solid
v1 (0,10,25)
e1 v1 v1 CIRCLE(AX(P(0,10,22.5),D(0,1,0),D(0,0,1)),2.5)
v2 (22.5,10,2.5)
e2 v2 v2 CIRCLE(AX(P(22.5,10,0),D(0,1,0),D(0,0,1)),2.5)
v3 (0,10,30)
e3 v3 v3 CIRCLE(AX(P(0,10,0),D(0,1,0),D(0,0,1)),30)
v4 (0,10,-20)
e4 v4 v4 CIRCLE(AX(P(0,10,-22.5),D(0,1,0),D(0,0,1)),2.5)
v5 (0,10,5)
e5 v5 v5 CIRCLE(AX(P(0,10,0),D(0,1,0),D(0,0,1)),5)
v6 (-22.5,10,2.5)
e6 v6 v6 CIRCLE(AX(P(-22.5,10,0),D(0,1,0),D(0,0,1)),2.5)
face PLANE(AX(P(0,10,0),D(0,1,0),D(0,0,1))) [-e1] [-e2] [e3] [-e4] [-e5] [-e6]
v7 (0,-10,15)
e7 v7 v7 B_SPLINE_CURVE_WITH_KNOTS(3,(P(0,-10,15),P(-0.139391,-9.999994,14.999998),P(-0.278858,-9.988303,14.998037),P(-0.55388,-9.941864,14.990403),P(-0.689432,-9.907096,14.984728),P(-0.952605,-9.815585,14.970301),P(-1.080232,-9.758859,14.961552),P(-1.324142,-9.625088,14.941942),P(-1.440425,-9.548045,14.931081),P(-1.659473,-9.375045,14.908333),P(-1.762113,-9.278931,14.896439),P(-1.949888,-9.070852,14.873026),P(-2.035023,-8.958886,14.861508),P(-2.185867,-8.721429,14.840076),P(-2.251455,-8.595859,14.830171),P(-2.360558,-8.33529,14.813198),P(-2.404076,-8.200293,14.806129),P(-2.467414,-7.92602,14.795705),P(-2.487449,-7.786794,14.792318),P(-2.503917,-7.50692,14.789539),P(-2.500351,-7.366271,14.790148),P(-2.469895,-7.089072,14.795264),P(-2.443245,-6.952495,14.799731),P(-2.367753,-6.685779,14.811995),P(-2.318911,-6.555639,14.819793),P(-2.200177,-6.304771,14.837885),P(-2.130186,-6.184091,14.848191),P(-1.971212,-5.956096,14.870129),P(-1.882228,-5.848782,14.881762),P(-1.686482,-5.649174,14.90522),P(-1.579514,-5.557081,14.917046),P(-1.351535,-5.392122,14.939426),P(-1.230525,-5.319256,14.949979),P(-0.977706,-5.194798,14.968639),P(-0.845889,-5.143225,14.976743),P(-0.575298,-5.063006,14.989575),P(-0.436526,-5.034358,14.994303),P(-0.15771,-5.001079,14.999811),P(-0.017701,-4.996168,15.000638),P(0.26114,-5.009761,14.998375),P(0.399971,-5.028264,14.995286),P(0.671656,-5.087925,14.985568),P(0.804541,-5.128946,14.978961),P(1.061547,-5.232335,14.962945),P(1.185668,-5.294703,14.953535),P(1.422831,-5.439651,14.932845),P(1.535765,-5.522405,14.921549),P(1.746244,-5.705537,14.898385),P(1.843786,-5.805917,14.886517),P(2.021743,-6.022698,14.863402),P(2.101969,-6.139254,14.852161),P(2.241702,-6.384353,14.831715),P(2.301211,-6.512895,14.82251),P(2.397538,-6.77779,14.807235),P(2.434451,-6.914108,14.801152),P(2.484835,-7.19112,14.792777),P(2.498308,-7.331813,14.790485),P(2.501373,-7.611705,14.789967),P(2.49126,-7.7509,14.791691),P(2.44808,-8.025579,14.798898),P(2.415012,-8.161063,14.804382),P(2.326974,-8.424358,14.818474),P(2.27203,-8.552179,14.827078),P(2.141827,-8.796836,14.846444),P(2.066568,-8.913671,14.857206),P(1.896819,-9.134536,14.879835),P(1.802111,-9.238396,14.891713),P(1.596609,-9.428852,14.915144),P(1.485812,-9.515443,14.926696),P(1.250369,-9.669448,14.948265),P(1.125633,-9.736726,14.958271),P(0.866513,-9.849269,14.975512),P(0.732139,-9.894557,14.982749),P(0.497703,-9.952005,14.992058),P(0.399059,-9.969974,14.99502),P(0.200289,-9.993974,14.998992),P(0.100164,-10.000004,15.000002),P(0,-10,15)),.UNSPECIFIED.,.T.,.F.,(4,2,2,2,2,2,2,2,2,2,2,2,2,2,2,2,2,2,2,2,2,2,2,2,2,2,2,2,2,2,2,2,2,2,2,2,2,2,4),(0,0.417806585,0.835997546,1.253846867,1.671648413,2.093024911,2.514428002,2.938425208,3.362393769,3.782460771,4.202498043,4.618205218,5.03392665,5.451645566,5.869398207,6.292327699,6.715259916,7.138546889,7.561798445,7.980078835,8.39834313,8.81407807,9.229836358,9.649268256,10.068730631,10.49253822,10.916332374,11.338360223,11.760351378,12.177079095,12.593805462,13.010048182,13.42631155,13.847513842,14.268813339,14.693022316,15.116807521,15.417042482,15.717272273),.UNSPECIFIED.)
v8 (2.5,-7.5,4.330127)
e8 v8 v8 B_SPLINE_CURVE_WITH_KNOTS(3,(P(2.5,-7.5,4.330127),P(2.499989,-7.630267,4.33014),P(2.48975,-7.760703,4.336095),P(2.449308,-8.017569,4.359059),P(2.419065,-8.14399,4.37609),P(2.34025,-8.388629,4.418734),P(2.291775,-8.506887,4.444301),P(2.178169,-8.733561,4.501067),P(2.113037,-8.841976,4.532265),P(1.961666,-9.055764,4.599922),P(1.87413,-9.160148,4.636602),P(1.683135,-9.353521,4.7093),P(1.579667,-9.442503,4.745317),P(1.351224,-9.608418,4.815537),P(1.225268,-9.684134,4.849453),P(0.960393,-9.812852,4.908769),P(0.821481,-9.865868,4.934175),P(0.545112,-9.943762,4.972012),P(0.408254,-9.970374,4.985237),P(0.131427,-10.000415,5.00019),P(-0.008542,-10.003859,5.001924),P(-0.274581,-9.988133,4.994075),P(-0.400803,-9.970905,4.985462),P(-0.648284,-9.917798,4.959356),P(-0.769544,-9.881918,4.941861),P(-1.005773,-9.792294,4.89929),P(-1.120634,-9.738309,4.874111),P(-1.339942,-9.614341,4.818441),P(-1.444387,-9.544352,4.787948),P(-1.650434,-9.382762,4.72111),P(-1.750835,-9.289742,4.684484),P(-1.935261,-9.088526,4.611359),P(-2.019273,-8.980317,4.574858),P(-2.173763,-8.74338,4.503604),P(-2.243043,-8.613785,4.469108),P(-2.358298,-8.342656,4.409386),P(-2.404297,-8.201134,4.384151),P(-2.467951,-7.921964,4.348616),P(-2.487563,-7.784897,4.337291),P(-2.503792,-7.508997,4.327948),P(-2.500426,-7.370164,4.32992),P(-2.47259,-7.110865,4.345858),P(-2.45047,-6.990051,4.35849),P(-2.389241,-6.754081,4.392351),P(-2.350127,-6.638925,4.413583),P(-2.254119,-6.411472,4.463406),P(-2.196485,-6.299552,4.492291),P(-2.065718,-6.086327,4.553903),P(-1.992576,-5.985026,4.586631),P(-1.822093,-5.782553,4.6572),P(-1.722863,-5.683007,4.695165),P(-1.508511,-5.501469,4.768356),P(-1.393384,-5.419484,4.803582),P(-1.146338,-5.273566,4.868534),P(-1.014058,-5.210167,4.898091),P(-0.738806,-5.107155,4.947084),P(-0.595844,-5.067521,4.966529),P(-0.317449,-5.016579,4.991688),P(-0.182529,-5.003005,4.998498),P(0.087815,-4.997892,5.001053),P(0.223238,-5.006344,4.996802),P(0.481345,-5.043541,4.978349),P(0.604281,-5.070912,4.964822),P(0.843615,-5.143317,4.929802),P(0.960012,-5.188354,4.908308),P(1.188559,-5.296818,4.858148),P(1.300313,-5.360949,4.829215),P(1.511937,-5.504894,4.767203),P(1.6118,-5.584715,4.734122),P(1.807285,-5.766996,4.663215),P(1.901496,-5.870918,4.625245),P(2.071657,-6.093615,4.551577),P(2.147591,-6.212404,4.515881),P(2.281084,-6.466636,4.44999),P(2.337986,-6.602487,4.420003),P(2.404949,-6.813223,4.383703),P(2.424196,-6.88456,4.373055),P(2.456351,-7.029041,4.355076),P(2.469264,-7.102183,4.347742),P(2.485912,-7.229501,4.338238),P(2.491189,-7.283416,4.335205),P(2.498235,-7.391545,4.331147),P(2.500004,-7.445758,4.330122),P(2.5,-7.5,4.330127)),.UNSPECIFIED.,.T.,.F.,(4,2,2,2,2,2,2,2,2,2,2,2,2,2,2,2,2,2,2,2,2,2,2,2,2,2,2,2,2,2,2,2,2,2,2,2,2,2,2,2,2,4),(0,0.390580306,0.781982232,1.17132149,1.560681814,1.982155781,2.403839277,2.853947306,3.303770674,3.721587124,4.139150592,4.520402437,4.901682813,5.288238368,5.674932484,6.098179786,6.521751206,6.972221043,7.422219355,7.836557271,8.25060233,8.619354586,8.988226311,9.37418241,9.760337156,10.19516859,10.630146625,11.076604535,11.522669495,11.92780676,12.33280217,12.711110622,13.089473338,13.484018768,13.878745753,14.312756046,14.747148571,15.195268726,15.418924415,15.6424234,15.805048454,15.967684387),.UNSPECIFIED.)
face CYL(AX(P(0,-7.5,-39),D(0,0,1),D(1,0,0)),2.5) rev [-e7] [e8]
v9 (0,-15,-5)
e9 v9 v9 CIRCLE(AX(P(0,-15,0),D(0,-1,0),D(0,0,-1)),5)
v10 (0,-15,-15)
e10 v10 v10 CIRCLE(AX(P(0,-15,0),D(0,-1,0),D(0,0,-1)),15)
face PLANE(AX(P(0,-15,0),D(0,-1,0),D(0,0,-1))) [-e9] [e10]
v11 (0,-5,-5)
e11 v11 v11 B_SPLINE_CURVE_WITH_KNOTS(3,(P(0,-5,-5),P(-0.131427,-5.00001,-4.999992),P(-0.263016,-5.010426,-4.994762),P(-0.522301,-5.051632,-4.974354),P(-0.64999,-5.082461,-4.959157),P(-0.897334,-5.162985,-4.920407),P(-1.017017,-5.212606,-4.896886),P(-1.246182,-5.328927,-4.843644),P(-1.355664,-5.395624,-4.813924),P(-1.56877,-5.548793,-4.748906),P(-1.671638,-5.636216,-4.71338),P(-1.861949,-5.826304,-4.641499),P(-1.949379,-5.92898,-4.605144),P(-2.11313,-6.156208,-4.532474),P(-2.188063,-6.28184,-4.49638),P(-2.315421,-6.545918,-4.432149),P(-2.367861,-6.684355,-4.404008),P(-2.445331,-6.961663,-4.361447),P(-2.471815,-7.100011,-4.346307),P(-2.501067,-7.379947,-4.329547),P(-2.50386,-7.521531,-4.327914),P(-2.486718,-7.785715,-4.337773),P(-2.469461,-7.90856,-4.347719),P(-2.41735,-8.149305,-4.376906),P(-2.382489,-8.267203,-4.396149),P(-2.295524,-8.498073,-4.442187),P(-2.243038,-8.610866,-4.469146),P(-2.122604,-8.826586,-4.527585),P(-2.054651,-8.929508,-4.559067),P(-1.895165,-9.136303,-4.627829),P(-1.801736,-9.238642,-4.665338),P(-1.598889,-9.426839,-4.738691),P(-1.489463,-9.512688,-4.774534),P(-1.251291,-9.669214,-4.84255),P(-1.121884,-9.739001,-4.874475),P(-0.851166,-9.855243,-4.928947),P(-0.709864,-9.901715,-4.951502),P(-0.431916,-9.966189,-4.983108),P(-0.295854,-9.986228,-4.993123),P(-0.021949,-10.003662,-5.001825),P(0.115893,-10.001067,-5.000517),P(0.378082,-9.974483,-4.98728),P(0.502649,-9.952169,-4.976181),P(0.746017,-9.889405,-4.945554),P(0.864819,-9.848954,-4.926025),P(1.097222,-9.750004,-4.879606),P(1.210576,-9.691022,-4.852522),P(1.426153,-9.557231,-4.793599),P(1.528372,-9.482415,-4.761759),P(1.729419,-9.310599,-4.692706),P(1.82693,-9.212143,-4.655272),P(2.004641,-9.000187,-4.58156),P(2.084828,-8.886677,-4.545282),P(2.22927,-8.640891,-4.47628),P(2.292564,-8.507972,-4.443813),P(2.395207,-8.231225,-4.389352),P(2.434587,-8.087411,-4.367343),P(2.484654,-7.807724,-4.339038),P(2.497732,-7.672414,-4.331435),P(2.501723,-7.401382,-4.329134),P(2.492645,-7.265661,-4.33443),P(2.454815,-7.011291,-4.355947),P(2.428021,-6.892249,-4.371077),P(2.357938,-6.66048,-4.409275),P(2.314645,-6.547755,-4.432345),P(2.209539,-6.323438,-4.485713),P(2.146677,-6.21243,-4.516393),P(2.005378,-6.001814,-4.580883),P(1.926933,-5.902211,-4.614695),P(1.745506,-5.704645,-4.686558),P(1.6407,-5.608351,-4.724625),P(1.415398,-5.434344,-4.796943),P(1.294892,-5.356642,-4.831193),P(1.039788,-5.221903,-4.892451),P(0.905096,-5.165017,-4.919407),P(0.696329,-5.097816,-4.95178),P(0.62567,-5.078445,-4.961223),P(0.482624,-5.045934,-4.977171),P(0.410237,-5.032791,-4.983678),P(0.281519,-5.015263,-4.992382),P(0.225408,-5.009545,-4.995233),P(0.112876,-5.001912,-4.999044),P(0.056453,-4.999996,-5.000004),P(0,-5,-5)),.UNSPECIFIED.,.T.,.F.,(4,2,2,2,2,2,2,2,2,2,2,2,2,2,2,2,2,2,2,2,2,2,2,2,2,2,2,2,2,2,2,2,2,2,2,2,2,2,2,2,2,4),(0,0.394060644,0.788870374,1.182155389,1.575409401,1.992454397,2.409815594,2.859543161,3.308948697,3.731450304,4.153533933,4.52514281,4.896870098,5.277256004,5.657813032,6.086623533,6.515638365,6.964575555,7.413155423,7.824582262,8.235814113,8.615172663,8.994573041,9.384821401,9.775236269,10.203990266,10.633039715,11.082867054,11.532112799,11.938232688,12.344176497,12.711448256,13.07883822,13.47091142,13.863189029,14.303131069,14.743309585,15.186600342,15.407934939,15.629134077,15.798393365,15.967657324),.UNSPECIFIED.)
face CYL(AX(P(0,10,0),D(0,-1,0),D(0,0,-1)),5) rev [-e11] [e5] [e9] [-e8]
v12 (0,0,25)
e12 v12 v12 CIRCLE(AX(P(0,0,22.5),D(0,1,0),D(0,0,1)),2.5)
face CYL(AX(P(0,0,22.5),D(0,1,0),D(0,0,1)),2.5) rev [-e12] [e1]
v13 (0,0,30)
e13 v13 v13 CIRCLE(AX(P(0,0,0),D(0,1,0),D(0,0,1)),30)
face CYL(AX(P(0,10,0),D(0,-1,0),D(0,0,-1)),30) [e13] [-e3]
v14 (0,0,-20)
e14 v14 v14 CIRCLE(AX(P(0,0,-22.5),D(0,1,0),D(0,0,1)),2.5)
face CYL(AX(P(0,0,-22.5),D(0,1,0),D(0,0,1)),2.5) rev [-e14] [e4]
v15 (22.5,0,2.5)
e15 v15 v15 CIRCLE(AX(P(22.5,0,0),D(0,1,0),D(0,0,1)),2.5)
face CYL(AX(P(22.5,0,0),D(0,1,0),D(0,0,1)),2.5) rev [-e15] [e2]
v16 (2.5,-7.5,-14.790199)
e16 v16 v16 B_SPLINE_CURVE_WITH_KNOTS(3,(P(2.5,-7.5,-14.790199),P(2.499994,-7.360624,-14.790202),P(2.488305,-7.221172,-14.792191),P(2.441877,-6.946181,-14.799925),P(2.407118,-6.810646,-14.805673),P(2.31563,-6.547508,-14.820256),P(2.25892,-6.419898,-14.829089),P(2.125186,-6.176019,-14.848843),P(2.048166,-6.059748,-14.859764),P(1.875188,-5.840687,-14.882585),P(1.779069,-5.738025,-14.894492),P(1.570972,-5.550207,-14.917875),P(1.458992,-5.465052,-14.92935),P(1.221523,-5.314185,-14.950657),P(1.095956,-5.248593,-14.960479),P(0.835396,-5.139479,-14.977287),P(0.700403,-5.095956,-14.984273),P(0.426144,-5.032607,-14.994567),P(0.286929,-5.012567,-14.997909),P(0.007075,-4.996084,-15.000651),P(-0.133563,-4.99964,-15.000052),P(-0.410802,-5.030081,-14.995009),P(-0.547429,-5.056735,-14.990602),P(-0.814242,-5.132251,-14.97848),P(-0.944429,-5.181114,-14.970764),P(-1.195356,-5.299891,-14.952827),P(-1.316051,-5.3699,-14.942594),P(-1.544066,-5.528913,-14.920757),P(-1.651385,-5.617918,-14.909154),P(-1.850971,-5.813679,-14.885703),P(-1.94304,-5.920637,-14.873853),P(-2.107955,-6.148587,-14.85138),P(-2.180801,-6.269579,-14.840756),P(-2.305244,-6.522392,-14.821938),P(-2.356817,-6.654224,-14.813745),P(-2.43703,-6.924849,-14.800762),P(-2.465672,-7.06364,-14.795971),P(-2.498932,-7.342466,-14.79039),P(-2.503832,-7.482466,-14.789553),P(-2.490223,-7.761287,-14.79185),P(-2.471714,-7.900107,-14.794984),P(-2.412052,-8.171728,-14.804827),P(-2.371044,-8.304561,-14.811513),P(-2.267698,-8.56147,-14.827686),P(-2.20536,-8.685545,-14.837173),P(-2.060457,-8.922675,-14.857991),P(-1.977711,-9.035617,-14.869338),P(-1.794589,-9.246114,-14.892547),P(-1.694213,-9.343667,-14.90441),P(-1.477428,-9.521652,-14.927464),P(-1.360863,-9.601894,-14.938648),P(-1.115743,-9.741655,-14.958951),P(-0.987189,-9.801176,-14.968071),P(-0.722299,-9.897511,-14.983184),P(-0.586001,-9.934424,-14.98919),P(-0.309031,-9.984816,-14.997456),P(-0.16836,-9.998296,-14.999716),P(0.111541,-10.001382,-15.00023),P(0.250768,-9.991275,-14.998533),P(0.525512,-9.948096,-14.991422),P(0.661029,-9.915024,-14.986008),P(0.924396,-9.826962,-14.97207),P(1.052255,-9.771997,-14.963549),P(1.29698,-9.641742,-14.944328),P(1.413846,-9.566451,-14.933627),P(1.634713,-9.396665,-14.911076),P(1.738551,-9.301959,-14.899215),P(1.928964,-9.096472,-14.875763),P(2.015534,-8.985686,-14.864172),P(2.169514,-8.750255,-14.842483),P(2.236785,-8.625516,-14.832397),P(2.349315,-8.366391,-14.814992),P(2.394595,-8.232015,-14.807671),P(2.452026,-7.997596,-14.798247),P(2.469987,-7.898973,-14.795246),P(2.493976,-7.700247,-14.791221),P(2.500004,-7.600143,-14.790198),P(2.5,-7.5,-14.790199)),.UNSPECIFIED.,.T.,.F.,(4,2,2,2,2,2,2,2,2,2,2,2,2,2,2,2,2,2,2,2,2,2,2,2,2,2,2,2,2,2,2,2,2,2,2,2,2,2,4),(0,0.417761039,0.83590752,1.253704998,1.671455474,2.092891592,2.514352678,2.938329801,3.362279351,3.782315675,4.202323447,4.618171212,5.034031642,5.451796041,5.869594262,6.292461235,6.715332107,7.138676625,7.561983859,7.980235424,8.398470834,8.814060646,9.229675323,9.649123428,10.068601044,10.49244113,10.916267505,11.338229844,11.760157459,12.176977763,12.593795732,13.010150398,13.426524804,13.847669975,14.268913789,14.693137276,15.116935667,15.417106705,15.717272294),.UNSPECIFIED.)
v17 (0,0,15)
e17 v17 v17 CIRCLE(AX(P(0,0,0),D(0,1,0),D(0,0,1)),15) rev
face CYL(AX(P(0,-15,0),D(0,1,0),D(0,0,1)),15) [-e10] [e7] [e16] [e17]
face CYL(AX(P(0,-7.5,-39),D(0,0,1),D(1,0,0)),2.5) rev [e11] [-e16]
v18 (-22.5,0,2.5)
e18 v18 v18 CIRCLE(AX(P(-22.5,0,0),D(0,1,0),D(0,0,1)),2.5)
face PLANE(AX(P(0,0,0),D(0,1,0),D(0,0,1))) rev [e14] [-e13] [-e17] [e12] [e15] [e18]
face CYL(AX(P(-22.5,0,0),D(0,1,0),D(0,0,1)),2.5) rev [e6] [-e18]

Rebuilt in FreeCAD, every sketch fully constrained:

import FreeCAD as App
import Part
import Sketcher
Q = App.Units.Quantity

doc = App.newDocument("Part")
body = doc.addObject("PartDesign::Body", "Body")

# Sketch on XZ plane
sketch1 = body.newObject("Sketcher::SketchObject", "Sketch")
sketch1.AttachmentSupport = (doc.getObject("XZ_Plane"), [""])
sketch1.MapMode = "FlatFace"
sketch1.addGeometry([
    Part.Circle(App.Vector(0, 0, 0), App.Vector(0, 0, 1), 30),
    Part.Circle(App.Vector(0, 0, 0), App.Vector(0, 0, 1), 5),
], False)
sketch1.addConstraint([
    Sketcher.Constraint("Coincident", 0, 3, -1, 1),
    Sketcher.Constraint("Coincident", 1, 3, -1, 1),
    Sketcher.Constraint("Diameter", 0, Q("60 mm")),
    Sketcher.Constraint("Diameter", 1, Q("10 mm")),
])
pad1 = body.newObject("PartDesign::Pad", "Pad")
pad1.Profile = sketch1
pad1.Length = 10
pad1.Reversed = True

# Sketch on XZ plane
sketch2 = body.newObject("Sketcher::SketchObject", "Sketch001")
sketch2.AttachmentSupport = (doc.getObject("XZ_Plane"), [""])
sketch2.MapMode = "FlatFace"
sketch2.AttachmentOffset = App.Placement(App.Vector(0, 0, -10), App.Rotation())
sketch2.addGeometry([
    Part.Circle(App.Vector(0, -22.5, 0), App.Vector(0, 0, 1), 2.5),
    Part.Circle(App.Vector(22.5, 0, 0), App.Vector(0, 0, 1), 2.5),
    Part.Circle(App.Vector(0, 22.5, 0), App.Vector(0, 0, 1), 2.5),
    Part.Circle(App.Vector(-22.5, 0, 0), App.Vector(0, 0, 1), 2.5),
], False)
sketch2.addConstraint([
    Sketcher.Constraint("Equal", 0, 1),
    Sketcher.Constraint("Equal", 1, 2),
    Sketcher.Constraint("Equal", 2, 3),
    Sketcher.Constraint("Symmetric", 0, 3, 2, 3, -1, 1),
    Sketcher.Constraint("Symmetric", 1, 3, 3, 3, -1, 1),
    Sketcher.Constraint("PointOnObject", 0, 3, -2),
    Sketcher.Constraint("PointOnObject", 1, 3, -1),
    Sketcher.Constraint("Diameter", 0, Q("5 mm")),
    Sketcher.Constraint("DistanceY", 0, 3, 2, 3, Q("45 mm")),
    Sketcher.Constraint("DistanceX", 3, 3, 1, 3, Q("45 mm")),
])
pocket1 = body.newObject("PartDesign::Pocket", "Pocket")
pocket1.Profile = sketch2
pocket1.Length = 10
pocket1.Reversed = True

# Sketch on XZ plane
sketch3 = body.newObject("Sketcher::SketchObject", "Sketch002")
sketch3.AttachmentSupport = (doc.getObject("XZ_Plane"), [""])
sketch3.MapMode = "FlatFace"
sketch3.AttachmentOffset = App.Placement(App.Vector(0, 0, 15), App.Rotation())
sketch3.addGeometry([
    Part.Circle(App.Vector(0, 0, 0), App.Vector(0, 0, 1), 15),
    Part.Circle(App.Vector(0, 0, 0), App.Vector(0, 0, 1), 5),
], False)
sketch3.addConstraint([
    Sketcher.Constraint("Coincident", 0, 3, -1, 1),
    Sketcher.Constraint("Coincident", 1, 3, -1, 1),
    Sketcher.Constraint("Diameter", 0, Q("30 mm")),
    Sketcher.Constraint("Diameter", 1, Q("10 mm")),
])
pad2 = body.newObject("PartDesign::Pad", "Pad001")
pad2.Profile = sketch3
pad2.Length = 15
pad2.Reversed = True

# Sketch on XY plane
sketch4 = body.newObject("Sketcher::SketchObject", "Sketch003")
sketch4.AttachmentSupport = (doc.getObject("XY_Plane"), [""])
sketch4.MapMode = "FlatFace"
sketch4.addGeometry(Part.Circle(App.Vector(0, -7.5, 0), App.Vector(0, 0, 1), 2.5), False)
sketch4.addConstraint([
    Sketcher.Constraint("PointOnObject", 0, 3, -2),
    Sketcher.Constraint("Diameter", 0, Q("5 mm")),
    Sketcher.Constraint("DistanceY", 0, 3, -1, 1, Q("7.5 mm")),
])
pocket2 = body.newObject("PartDesign::Pocket", "Pocket001")
pocket2.Profile = sketch4
pocket2.Type = "ThroughAll"
pocket2.Midplane = True

doc.recompute()
